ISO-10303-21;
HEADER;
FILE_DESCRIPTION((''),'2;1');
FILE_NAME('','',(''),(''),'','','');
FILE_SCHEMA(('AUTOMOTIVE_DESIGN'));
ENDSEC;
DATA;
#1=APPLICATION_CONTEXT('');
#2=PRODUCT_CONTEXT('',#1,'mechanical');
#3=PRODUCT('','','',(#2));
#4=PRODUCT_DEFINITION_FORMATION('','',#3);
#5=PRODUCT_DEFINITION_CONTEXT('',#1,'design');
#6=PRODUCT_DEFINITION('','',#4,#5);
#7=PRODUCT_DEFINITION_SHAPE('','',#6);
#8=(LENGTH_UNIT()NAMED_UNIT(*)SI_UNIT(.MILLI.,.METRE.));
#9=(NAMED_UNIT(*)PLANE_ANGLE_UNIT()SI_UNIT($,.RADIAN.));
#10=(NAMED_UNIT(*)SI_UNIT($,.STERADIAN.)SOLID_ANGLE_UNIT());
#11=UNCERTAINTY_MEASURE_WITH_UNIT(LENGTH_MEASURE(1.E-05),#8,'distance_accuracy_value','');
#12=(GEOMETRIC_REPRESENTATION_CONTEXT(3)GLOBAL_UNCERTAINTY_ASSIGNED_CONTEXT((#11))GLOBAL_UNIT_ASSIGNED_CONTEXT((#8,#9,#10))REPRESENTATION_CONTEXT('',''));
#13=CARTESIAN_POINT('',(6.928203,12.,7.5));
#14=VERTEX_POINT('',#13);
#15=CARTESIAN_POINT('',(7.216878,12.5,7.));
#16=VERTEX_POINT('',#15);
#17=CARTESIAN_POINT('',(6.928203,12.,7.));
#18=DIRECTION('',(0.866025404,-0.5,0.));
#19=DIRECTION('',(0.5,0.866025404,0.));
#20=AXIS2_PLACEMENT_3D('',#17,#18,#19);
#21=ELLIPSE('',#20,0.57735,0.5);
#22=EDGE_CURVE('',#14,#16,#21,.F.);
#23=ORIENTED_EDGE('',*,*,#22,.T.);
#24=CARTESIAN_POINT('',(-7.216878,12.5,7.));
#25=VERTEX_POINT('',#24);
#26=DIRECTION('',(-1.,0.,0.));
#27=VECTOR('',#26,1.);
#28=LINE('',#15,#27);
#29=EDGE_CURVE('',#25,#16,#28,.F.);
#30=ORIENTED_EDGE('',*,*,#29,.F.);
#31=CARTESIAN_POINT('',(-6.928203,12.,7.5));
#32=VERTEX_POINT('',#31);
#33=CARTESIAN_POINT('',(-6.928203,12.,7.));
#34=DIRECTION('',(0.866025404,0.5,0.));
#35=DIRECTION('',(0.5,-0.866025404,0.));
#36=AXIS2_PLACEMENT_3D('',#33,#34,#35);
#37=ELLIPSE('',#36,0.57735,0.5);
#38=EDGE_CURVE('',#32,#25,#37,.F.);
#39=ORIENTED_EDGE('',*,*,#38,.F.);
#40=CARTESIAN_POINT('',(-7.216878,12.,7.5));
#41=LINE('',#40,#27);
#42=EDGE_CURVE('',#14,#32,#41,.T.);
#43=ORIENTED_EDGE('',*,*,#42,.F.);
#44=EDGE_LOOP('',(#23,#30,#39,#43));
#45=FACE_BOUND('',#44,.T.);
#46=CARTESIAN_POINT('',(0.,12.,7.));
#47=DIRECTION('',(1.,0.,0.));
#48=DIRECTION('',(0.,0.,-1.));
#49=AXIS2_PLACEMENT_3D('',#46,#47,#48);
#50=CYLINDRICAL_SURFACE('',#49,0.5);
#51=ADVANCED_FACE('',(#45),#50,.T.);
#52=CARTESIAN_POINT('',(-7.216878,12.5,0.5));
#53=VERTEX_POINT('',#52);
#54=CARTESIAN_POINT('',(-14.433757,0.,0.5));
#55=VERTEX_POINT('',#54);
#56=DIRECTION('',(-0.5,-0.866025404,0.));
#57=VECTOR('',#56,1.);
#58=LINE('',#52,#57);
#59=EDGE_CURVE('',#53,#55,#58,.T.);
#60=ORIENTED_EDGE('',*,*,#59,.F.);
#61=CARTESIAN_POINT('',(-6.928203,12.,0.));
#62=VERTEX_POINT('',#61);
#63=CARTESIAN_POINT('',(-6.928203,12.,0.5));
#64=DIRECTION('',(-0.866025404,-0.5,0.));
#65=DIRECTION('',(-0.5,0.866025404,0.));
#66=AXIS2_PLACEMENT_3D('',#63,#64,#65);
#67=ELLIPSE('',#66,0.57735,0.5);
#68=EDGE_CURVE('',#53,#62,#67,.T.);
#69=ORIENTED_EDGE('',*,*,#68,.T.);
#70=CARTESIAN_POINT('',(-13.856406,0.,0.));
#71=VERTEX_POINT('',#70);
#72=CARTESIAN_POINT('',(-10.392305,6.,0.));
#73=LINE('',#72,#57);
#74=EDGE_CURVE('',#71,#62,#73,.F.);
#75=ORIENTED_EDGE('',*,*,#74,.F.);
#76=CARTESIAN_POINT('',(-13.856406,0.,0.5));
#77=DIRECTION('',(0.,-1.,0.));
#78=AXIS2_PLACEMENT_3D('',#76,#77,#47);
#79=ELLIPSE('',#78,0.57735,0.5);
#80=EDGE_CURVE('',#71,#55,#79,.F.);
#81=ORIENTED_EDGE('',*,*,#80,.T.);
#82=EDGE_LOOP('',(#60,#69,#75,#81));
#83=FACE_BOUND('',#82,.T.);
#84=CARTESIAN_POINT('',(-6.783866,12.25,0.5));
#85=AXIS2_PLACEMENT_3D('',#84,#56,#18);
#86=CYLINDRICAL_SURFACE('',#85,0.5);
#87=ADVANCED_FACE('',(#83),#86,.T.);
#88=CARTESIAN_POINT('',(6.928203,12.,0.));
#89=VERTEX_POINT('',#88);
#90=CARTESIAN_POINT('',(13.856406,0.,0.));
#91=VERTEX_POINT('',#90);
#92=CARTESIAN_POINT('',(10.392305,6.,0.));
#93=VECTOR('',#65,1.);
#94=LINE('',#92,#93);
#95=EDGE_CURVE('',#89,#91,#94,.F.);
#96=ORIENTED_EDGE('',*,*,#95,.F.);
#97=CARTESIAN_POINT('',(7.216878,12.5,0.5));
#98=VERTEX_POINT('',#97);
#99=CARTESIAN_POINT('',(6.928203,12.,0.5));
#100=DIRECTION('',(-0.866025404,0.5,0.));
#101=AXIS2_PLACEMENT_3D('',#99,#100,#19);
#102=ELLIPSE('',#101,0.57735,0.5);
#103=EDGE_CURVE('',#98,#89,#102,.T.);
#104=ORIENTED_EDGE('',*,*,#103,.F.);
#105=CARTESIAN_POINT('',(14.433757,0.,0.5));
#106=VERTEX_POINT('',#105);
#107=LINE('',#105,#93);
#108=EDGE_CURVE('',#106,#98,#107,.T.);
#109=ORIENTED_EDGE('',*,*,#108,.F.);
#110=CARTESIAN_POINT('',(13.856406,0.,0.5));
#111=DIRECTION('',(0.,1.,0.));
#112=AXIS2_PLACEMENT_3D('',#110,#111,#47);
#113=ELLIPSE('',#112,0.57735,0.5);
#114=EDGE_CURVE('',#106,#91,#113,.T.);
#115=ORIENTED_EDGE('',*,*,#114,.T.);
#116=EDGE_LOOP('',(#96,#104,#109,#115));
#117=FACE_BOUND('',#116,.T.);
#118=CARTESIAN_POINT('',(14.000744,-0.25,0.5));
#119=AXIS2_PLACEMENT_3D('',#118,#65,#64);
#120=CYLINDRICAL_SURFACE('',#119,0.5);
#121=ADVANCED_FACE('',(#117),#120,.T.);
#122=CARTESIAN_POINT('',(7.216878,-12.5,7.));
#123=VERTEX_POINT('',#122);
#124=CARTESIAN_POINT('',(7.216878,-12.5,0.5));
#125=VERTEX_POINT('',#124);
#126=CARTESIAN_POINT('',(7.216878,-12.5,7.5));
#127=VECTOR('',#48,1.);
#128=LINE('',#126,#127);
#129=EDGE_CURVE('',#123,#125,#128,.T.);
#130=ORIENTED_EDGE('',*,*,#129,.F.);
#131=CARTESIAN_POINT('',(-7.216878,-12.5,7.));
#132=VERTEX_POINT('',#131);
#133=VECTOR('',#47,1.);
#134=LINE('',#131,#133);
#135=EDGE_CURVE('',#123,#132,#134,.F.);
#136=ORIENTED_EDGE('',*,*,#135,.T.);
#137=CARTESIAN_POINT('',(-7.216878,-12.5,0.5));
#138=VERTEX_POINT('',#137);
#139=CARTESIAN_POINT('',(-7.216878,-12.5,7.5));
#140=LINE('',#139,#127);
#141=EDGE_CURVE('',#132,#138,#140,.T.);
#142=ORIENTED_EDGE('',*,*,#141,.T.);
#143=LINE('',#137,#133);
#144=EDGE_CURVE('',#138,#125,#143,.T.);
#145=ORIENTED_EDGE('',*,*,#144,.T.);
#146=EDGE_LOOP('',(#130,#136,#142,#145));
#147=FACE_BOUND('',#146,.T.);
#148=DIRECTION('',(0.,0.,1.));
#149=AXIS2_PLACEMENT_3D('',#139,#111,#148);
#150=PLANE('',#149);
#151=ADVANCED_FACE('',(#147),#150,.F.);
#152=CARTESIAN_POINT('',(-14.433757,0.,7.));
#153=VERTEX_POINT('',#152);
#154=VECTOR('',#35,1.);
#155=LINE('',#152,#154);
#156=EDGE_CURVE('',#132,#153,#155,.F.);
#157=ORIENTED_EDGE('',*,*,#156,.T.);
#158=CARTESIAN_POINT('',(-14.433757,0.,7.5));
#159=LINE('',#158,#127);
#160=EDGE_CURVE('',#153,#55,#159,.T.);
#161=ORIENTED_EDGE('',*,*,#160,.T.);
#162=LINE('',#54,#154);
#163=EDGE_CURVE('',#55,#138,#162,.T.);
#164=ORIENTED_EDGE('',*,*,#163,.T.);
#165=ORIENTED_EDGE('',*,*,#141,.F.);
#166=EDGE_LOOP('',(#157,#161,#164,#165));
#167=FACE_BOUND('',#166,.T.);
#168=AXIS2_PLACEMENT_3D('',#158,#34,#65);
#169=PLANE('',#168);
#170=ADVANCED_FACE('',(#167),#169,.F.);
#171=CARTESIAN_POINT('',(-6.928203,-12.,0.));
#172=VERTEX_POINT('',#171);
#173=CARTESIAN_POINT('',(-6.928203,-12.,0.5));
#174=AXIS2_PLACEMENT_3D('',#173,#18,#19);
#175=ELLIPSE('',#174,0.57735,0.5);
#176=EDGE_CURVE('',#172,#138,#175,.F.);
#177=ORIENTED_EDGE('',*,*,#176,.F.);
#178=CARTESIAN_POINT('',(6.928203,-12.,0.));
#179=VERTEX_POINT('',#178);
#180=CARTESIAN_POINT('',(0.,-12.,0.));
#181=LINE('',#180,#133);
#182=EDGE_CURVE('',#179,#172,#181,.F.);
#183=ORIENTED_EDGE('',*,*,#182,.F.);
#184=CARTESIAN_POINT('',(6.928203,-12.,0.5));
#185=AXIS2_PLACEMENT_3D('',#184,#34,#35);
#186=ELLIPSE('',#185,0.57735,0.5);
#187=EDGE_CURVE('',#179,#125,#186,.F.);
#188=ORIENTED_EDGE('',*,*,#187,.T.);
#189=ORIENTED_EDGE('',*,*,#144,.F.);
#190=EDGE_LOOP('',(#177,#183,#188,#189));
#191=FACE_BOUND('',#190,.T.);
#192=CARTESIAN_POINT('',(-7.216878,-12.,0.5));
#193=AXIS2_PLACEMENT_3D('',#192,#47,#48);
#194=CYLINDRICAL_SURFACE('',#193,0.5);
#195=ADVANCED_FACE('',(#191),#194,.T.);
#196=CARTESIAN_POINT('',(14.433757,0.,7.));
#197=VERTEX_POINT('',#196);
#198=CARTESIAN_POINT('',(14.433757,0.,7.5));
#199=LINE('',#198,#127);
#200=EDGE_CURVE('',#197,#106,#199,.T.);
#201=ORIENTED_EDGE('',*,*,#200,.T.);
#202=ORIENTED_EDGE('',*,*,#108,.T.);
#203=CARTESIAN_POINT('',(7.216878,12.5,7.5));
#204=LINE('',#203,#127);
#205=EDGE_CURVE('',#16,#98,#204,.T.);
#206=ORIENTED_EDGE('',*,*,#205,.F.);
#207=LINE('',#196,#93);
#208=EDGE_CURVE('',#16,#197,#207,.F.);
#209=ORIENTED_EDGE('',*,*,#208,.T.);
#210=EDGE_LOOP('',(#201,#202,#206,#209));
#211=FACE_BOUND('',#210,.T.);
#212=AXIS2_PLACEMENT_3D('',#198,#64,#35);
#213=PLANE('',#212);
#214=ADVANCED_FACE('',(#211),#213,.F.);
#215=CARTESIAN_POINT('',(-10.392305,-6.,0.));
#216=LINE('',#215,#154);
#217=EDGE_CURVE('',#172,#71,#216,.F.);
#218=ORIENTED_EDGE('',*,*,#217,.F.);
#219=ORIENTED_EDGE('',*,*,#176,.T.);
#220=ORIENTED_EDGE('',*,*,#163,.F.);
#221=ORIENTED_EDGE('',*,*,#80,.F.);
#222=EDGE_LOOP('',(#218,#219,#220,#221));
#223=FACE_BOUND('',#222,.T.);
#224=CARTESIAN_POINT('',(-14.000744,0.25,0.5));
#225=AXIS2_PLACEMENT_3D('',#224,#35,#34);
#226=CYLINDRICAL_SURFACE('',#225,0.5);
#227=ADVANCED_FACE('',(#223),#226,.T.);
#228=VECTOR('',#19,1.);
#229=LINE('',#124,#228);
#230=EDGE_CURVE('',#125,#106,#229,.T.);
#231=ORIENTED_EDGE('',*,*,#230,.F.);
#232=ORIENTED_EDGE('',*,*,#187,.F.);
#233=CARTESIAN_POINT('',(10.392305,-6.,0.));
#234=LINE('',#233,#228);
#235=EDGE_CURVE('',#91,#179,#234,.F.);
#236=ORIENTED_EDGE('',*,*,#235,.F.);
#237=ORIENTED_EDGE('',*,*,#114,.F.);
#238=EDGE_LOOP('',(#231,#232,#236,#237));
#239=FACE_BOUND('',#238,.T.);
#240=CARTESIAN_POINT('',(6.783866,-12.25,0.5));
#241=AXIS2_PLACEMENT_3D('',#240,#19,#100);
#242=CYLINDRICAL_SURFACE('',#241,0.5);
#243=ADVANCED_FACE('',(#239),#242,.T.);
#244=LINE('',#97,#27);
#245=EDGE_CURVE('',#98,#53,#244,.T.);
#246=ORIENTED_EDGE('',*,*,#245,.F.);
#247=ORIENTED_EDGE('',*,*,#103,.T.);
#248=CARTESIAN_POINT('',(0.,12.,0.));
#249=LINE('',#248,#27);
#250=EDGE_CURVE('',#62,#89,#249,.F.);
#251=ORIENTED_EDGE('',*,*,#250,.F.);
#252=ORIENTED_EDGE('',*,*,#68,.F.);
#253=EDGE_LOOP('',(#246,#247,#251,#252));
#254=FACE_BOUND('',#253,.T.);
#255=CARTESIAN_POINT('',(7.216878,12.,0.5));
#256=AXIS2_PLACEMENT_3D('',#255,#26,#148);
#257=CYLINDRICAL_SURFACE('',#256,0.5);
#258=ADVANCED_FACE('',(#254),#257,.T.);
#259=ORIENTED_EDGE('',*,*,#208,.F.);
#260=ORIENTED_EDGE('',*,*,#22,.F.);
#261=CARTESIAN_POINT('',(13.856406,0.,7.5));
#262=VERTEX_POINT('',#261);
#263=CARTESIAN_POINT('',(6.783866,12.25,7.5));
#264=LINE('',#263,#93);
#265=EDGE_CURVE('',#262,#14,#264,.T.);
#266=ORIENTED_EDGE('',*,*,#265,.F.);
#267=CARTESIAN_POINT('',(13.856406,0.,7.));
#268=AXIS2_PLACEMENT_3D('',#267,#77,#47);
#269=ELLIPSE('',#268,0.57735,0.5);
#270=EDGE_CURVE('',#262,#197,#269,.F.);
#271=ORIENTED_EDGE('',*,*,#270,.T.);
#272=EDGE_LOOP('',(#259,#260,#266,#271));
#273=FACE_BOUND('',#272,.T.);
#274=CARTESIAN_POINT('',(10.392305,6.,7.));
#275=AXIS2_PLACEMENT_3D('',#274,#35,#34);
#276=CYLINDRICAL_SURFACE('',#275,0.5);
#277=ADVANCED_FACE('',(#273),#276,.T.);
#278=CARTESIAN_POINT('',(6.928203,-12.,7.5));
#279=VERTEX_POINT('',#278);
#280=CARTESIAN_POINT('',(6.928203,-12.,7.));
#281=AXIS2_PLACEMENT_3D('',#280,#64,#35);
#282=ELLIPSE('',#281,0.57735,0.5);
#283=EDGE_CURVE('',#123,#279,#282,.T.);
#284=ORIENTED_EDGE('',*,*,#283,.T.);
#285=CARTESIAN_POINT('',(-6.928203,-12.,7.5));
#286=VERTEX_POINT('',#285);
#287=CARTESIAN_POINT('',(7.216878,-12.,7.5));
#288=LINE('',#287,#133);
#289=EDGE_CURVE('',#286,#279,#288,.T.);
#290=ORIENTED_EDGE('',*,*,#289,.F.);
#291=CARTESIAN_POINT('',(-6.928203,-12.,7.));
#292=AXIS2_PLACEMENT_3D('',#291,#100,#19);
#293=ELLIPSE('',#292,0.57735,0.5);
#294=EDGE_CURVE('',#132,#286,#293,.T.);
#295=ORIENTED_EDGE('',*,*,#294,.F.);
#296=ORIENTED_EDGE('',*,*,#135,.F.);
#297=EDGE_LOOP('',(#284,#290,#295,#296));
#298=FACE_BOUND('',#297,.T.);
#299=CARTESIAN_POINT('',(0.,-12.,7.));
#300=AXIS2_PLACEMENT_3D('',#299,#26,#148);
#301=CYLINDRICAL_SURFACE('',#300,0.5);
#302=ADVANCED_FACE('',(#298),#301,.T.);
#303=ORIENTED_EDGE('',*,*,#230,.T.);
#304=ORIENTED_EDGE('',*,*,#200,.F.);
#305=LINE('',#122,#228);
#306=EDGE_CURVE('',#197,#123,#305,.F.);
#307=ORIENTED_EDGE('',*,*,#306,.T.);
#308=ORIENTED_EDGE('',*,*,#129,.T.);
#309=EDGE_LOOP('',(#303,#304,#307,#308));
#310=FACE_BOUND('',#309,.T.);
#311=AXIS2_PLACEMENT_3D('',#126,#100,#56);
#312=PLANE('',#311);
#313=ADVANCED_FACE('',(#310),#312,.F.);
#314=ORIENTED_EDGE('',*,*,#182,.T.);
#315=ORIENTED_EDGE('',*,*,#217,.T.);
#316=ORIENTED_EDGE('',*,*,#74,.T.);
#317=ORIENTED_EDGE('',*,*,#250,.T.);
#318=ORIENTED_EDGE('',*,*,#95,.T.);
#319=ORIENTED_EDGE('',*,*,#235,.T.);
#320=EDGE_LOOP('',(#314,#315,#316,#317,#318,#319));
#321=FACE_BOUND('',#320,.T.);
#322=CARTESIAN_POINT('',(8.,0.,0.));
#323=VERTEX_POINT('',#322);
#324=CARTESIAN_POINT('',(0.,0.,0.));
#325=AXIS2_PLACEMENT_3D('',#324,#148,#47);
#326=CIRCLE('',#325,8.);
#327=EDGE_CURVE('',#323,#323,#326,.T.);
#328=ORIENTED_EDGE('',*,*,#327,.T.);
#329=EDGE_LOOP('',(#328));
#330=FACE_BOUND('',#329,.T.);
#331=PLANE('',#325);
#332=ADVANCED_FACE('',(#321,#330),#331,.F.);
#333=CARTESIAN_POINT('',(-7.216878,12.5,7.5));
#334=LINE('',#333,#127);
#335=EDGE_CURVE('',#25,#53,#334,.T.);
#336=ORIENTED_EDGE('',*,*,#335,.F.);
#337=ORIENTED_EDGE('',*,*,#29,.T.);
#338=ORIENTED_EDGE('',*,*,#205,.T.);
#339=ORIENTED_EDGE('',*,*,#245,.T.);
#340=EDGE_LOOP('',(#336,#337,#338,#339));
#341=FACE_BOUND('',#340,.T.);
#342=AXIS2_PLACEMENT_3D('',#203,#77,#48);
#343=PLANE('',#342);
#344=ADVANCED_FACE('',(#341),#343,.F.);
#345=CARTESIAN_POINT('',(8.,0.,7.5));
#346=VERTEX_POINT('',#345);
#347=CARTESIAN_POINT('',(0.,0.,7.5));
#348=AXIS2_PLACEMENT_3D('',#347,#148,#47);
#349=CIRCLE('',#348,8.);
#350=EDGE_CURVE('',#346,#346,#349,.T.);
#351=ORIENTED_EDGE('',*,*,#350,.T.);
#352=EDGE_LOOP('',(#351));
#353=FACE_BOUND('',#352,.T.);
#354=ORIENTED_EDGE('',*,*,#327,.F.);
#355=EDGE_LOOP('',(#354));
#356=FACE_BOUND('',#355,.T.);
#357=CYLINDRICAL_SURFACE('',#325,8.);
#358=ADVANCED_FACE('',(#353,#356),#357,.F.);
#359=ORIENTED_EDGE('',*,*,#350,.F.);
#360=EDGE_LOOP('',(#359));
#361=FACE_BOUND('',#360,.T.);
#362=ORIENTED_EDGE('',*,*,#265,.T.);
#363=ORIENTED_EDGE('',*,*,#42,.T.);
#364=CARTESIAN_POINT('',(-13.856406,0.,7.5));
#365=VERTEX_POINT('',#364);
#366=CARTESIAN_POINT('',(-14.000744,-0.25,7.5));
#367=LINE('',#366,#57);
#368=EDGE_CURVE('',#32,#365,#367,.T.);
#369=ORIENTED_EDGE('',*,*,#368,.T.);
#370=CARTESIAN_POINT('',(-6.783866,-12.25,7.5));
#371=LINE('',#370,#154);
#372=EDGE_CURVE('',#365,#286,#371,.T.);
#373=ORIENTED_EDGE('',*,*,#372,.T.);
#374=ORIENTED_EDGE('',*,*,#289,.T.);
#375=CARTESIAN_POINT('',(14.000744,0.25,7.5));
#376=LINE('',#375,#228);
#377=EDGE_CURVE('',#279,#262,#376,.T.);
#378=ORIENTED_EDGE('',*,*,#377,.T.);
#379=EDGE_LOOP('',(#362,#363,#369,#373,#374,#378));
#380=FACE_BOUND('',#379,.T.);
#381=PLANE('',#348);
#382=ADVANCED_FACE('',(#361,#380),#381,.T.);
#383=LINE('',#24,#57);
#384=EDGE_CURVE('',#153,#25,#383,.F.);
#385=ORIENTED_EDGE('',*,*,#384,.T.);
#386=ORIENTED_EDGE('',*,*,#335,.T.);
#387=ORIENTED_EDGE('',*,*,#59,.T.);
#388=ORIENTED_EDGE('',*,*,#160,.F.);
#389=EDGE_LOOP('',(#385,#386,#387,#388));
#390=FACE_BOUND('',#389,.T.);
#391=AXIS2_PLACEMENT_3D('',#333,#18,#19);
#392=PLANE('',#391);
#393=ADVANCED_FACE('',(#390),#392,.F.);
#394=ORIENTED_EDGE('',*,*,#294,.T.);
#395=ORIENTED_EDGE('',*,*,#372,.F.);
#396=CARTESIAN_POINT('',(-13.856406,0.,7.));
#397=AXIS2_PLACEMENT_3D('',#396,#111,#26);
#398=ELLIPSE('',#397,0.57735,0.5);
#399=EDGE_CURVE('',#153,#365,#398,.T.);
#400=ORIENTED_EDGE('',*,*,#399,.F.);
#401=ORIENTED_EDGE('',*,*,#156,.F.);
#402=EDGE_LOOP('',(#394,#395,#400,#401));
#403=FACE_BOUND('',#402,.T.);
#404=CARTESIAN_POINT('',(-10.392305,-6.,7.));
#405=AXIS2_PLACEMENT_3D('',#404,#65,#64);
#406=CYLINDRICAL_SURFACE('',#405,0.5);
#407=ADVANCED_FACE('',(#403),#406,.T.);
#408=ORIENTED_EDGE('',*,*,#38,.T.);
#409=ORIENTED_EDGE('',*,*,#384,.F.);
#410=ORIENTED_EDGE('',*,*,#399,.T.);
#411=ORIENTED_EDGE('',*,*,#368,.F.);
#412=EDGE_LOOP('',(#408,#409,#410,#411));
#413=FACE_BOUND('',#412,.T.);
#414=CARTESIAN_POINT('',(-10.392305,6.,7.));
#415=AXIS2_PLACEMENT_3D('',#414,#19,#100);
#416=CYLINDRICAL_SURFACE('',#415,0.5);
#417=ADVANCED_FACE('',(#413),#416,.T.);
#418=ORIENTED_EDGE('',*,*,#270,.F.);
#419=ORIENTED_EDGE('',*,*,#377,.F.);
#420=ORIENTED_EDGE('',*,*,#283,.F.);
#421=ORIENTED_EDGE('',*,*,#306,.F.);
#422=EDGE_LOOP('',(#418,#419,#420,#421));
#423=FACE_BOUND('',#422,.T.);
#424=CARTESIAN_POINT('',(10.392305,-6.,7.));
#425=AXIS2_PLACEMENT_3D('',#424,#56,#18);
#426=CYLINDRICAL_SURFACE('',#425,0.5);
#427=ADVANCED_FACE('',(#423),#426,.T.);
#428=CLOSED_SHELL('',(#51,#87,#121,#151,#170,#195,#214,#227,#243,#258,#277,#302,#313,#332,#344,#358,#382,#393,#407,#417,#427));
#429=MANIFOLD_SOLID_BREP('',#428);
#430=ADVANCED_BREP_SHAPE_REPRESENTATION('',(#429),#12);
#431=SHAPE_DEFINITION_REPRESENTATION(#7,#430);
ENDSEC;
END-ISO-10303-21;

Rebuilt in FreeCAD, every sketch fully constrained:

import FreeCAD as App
import Part
import Sketcher
from FreeCAD import Vector
Q = App.Units.Quantity


def edges_at(feature, points):
    """Names of the edges that pass closest to the given points."""
    edges = feature.Shape.Edges
    near = lambda p: min(range(len(edges)), key=lambda i: edges[i].distToShape(Part.Vertex(*p))[0])
    return sorted({f"Edge{near(p) + 1}" for p in points})

doc = App.newDocument("Part")
body = doc.addObject("PartDesign::Body", "Body")

# Sketch on XY plane
sketch1 = body.newObject("Sketcher::SketchObject", "Sketch")
sketch1.AttachmentSupport = (doc.getObject("XY_Plane"), [""])
sketch1.MapMode = "FlatFace"
sketch1.addGeometry(Part.LineSegment(Vector(7, -12, 0), Vector(14, 0, 0)), False)
sketch1.addGeometry(Part.LineSegment(Vector(14, 0, 0), Vector(7, 12, 0)), False)
sketch1.addGeometry(Part.LineSegment(Vector(7, 12, 0), Vector(-7, 12, 0)), False)
sketch1.addGeometry(Part.LineSegment(Vector(-7, 12, 0), Vector(-14, 0, 0)), False)
sketch1.addGeometry(Part.LineSegment(Vector(-14, 0, 0), Vector(-7, -12, 0)), False)
sketch1.addGeometry(Part.LineSegment(Vector(-7, -12, 0), Vector(7, -12, 0)), False)
sketch1.addConstraint(Sketcher.Constraint("Coincident", 0, 2, 1, 1))
sketch1.addConstraint(Sketcher.Constraint("Coincident", 1, 2, 2, 1))
sketch1.addConstraint(Sketcher.Constraint("Coincident", 2, 2, 3, 1))
sketch1.addConstraint(Sketcher.Constraint("Coincident", 3, 2, 4, 1))
sketch1.addConstraint(Sketcher.Constraint("Coincident", 4, 2, 5, 1))
sketch1.addConstraint(Sketcher.Constraint("Coincident", 5, 2, 0, 1))
sketch1.addConstraint(Sketcher.Constraint("Horizontal", 2))
sketch1.addConstraint(Sketcher.Constraint("Horizontal", 5))
sketch1.addConstraint(Sketcher.Constraint("Symmetric", 0, 2, 3, 2, -1, 1))
sketch1.addConstraint(Sketcher.Constraint("Symmetric", 1, 2, 4, 2, -1, 1))
sketch1.addConstraint(Sketcher.Constraint("PointOnObject", 0, 2, -1))
sketch1.addConstraint(Sketcher.Constraint("Parallel", 0, 3))
sketch1.addConstraint(Sketcher.Constraint("Vertical", 2, 2, 4, 2))
sketch1.addConstraint(Sketcher.Constraint("Angle", 0, Q("60 deg")))
sketch1.addConstraint(Sketcher.Constraint("DistanceY", 4, 2, 2, 2, Q("25 mm")))
sketch1.addConstraint(Sketcher.Constraint("DistanceX", 2, 2, 2, 1, Q("14.433757 mm")))
pad1 = body.newObject("PartDesign::Pad", "Pad")
pad1.Profile = sketch1
pad1.Length = 7.5

# Sketch on XY plane
sketch2 = body.newObject("Sketcher::SketchObject", "Sketch001")
sketch2.AttachmentSupport = (doc.getObject("XY_Plane"), [""])
sketch2.MapMode = "FlatFace"
sketch2.AttachmentOffset = App.Placement(Vector(0, 0, 7.5), App.Rotation())
sketch2.addGeometry(Part.Circle(Vector(0, 0, 0), Vector(0, 0, 1), 8), False)
sketch2.addConstraint(Sketcher.Constraint("Coincident", 0, 3, -1, 1))
sketch2.addConstraint(Sketcher.Constraint("Diameter", 0, Q("16 mm")))
pocket1 = body.newObject("PartDesign::Pocket", "Pocket")
pocket1.Profile = sketch2
pocket1.Type = "ThroughAll"
doc.recompute()

fillet = body.newObject("PartDesign::Fillet", "Fillet")
fillet.Base = (pocket1, edges_at(pocket1, [
    (10.825, 6.25, 7.5),
    (0, 12.5, 7.5),
    (-10.825, 6.25, 7.5),
    (-10.825, -6.25, 7.5),
    (0, -12.5, 7.5),
    (-10.825, -6.25, 0),
    (-10.825, 6.25, 0),
    (0, 12.5, 0),
    (10.825, -6.25, 7.5),
    (10.825, 6.25, 0),
    (10.825, -6.25, 0),
    (0, -12.5, 0),
]))
fillet.Radius = 0.5

doc.recompute()
